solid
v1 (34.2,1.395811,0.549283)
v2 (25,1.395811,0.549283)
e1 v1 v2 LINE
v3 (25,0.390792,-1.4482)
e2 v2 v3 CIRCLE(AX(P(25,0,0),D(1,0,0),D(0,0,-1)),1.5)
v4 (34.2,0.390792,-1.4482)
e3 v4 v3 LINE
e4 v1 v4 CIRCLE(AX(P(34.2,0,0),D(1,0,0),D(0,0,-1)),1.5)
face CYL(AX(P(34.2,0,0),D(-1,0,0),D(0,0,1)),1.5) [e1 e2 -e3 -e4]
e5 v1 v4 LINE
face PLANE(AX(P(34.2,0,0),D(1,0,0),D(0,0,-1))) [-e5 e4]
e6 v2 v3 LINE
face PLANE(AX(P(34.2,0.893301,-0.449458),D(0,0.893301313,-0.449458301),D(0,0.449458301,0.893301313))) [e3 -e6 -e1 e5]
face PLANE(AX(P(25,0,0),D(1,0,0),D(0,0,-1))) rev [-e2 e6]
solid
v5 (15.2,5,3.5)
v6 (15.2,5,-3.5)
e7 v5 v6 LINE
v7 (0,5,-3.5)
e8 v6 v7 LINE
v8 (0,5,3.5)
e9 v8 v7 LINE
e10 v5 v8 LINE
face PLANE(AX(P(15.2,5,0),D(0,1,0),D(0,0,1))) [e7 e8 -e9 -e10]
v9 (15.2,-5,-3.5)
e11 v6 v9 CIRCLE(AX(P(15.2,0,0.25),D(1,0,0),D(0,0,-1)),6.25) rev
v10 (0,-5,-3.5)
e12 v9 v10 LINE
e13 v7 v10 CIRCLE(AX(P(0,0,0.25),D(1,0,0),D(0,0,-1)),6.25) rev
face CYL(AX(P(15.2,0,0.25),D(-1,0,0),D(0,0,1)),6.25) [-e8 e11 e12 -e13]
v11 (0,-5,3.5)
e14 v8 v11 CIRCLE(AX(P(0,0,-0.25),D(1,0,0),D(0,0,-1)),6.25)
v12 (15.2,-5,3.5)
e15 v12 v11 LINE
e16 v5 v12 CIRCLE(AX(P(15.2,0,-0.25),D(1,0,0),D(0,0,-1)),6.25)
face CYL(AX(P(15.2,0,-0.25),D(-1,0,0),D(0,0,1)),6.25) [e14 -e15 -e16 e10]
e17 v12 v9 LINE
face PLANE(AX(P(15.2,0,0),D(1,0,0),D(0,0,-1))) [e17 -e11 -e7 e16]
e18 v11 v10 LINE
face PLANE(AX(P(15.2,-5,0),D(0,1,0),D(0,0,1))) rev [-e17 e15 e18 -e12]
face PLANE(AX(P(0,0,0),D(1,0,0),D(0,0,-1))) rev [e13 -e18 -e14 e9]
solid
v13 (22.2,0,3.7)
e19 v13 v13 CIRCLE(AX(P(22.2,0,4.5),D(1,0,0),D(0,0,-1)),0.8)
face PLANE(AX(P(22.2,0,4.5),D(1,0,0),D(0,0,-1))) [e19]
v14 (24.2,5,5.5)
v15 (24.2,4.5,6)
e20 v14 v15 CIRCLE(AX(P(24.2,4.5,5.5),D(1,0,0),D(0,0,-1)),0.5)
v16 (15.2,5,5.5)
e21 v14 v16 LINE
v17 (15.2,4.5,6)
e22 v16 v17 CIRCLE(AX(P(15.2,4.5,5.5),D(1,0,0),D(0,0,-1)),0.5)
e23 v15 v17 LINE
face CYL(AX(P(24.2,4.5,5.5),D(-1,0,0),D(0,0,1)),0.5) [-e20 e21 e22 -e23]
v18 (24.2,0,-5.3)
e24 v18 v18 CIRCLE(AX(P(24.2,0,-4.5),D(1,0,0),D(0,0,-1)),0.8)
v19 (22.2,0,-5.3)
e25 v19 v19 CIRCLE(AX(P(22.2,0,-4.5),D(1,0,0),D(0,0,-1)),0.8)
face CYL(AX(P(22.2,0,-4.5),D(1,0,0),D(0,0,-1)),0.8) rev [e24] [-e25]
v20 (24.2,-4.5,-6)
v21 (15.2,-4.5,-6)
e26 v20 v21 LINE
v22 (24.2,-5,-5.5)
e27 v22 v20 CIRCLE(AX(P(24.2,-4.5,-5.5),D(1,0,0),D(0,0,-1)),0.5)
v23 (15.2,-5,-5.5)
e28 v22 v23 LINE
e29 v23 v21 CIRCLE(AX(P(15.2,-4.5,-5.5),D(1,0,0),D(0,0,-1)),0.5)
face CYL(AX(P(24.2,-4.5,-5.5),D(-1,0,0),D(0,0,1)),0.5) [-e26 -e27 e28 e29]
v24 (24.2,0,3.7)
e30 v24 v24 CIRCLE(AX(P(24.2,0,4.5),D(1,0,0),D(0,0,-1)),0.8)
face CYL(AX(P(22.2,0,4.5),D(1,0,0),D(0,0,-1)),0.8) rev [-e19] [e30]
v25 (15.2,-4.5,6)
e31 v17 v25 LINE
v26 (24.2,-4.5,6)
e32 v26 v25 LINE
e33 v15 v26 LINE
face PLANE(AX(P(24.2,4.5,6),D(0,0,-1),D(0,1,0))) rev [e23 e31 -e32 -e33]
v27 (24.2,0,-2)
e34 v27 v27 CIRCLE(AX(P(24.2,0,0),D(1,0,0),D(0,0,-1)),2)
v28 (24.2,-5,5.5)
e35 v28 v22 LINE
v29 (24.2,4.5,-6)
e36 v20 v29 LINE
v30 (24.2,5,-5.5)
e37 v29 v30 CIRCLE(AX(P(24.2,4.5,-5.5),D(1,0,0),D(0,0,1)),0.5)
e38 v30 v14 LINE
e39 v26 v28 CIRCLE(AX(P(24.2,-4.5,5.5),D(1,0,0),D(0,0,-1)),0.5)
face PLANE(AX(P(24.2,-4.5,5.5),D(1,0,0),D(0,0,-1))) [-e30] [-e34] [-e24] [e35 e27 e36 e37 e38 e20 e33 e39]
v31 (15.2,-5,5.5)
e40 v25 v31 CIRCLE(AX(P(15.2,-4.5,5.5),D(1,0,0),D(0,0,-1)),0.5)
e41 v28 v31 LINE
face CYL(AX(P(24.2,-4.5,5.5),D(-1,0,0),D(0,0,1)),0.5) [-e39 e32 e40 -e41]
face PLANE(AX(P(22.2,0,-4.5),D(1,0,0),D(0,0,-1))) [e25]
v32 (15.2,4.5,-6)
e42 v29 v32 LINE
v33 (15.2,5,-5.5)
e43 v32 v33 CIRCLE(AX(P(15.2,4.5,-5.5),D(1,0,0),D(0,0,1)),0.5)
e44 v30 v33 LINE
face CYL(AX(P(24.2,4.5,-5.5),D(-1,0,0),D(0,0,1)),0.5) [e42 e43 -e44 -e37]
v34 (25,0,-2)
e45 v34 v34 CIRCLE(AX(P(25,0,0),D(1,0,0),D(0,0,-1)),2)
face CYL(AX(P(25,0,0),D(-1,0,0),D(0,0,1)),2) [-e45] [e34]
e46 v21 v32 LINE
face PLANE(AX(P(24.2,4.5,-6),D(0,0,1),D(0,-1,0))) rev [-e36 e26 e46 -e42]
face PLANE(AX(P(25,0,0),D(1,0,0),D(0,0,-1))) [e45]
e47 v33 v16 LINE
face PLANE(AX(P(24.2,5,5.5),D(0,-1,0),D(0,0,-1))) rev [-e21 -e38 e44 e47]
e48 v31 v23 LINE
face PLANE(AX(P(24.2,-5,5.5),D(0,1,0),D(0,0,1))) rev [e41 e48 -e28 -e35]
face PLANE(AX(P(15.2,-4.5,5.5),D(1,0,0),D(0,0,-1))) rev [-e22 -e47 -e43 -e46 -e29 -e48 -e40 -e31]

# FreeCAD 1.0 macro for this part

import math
import FreeCAD as App
import Part
import Sketcher

V = App.Vector
Q = App.Units.Quantity

doc = App.newDocument("Part")
body = doc.addObject("PartDesign::Body", "Body")

# Sketch on YZ plane
sketch1 = body.newObject("Sketcher::SketchObject", "Sketch")
sketch1.AttachmentSupport = (doc.getObject("YZ_Plane"), [""])
sketch1.MapMode = "FlatFace"
sketch1.addGeometry(Part.ArcOfCircle(Part.Circle(V(0, 0, 0), V(0, 0, 1), 6), math.radians(37), math.radians(143)), False)
sketch1.addGeometry(Part.LineSegment(V(-5, 4, 0), V(-5, -4, 0)), False)
sketch1.addGeometry(Part.ArcOfCircle(Part.Circle(V(0, 0, 0), V(0, 0, 1), 6), math.radians(-143), math.radians(-37)), False)
sketch1.addGeometry(Part.LineSegment(V(5, -4, 0), V(5, 4, 0)), False)
sketch1.addConstraint(Sketcher.Constraint("Coincident", 0, 2, 1, 1))
sketch1.addConstraint(Sketcher.Constraint("Coincident", 1, 2, 2, 1))
sketch1.addConstraint(Sketcher.Constraint("Coincident", 2, 2, 3, 1))
sketch1.addConstraint(Sketcher.Constraint("Coincident", 3, 2, 0, 1))
sketch1.addConstraint(Sketcher.Constraint("Vertical", 1))
sketch1.addConstraint(Sketcher.Constraint("Vertical", 3))
sketch1.addConstraint(Sketcher.Constraint("Equal", 0, 2))
sketch1.addConstraint(Sketcher.Constraint("Symmetric", 0, 3, 2, 3, -1, 1))
sketch1.addConstraint(Sketcher.Constraint("Symmetric", 1, 2, 2, 2, -2))
sketch1.addConstraint(Sketcher.Constraint("DistanceY", 1, 2, 1, 1, Q("7 mm")))
sketch1.addConstraint(Sketcher.Constraint("Radius", 0, Q("6.25 mm")))
sketch1.addConstraint(Sketcher.Constraint("DistanceX", 0, 2, -1, 1, Q("5 mm")))
pad1 = body.newObject("PartDesign::Pad", "Pad")
pad1.Profile = sketch1
pad1.Length = 15.2
body2 = doc.addObject("PartDesign::Body", "Body001")

# Sketch on YZ plane
sketch2 = body2.newObject("Sketcher::SketchObject", "Sketch001")
sketch2.AttachmentSupport = (doc.getObject("YZ_Plane001"), [""])
sketch2.MapMode = "FlatFace"
sketch2.AttachmentOffset = App.Placement(V(0, 0, 15.2), App.Rotation())
sketch2.addGeometry(Part.LineSegment(V(5, -5.5, 0), V(5, 5.5, 0)), False)
sketch2.addGeometry(Part.ArcOfCircle(Part.Circle(V(4.5, 5.5, 0), V(0, 0, 1), 0.5), math.radians(0), math.radians(90)), False)
sketch2.addGeometry(Part.LineSegment(V(4.5, 6, 0), V(-4.5, 6, 0)), False)
sketch2.addGeometry(Part.ArcOfCircle(Part.Circle(V(-4.5, 5.5, 0), V(0, 0, 1), 0.5), math.radians(90), math.radians(180)), False)
sketch2.addGeometry(Part.LineSegment(V(-5, 5.5, 0), V(-5, -5.5, 0)), False)
sketch2.addGeometry(Part.ArcOfCircle(Part.Circle(V(-4.5, -5.5, 0), V(0, 0, 1), 0.5), math.radians(180), math.radians(270)), False)
sketch2.addGeometry(Part.LineSegment(V(-4.5, -6, 0), V(4.5, -6, 0)), False)
sketch2.addGeometry(Part.ArcOfCircle(Part.Circle(V(4.5, -5.5, 0), V(0, 0, 1), 0.5), math.radians(-90), math.radians(0)), False)
sketch2.addConstraint(Sketcher.Constraint("Tangent", 0, 2, 1, 1))
sketch2.addConstraint(Sketcher.Constraint("Tangent", 1, 2, 2, 1))
sketch2.addConstraint(Sketcher.Constraint("Tangent", 2, 2, 3, 1))
sketch2.addConstraint(Sketcher.Constraint("Tangent", 3, 2, 4, 1))
sketch2.addConstraint(Sketcher.Constraint("Tangent", 4, 2, 5, 1))
sketch2.addConstraint(Sketcher.Constraint("Tangent", 5, 2, 6, 1))
sketch2.addConstraint(Sketcher.Constraint("Tangent", 6, 2, 7, 1))
sketch2.addConstraint(Sketcher.Constraint("Tangent", 7, 2, 0, 1))
sketch2.addConstraint(Sketcher.Constraint("Vertical", 0))
sketch2.addConstraint(Sketcher.Constraint("Horizontal", 2))
sketch2.addConstraint(Sketcher.Constraint("Vertical", 4))
sketch2.addConstraint(Sketcher.Constraint("Horizontal", 6))
sketch2.addConstraint(Sketcher.Constraint("Equal", 1, 3))
sketch2.addConstraint(Sketcher.Constraint("Equal", 3, 5))
sketch2.addConstraint(Sketcher.Constraint("Equal", 5, 7))
sketch2.addConstraint(Sketcher.Constraint("Symmetric", 1, 3, 5, 3, -1, 1))
sketch2.addConstraint(Sketcher.Constraint("Radius", 1, Q("0.5 mm")))
sketch2.addConstraint(Sketcher.Constraint("DistanceX", 2, 2, 2, 1, Q("9 mm")))
sketch2.addConstraint(Sketcher.Constraint("DistanceY", 0, 1, 0, 2, Q("11 mm")))
pad2 = body2.newObject("PartDesign::Pad", "Pad001")
pad2.Profile = sketch2
pad2.Length = 9

# Sketch on YZ plane
sketch3 = body2.newObject("Sketcher::SketchObject", "Sketch002")
sketch3.AttachmentSupport = (doc.getObject("YZ_Plane001"), [""])
sketch3.MapMode = "FlatFace"
sketch3.AttachmentOffset = App.Placement(V(0, 0, 24.2), App.Rotation())
sketch3.addGeometry(Part.Circle(V(0, 0, 0), V(0, 0, 1), 2), False)
sketch3.addConstraint(Sketcher.Constraint("Coincident", 0, 3, -1, 1))
sketch3.addConstraint(Sketcher.Constraint("Diameter", 0, Q("4 mm")))
pad3 = body2.newObject("PartDesign::Pad", "Pad002")
pad3.Profile = sketch3
pad3.Length = 0.8

# Sketch on YZ plane
sketch4 = body2.newObject("Sketcher::SketchObject", "Sketch003")
sketch4.AttachmentSupport = (doc.getObject("YZ_Plane001"), [""])
sketch4.MapMode = "FlatFace"
sketch4.AttachmentOffset = App.Placement(V(0, 0, 24.2), App.Rotation())
sketch4.addGeometry(Part.Circle(V(0, -4.5, 0), V(0, 0, 1), 0.8), False)
sketch4.addGeometry(Part.Circle(V(0, 4.5, 0), V(0, 0, 1), 0.8), False)
sketch4.addConstraint(Sketcher.Constraint("Equal", 0, 1))
sketch4.addConstraint(Sketcher.Constraint("Symmetric", 0, 3, 1, 3, -1, 1))
sketch4.addConstraint(Sketcher.Constraint("PointOnObject", 0, 3, -2))
sketch4.addConstraint(Sketcher.Constraint("Diameter", 0, Q("1.6 mm")))
sketch4.addConstraint(Sketcher.Constraint("DistanceY", 0, 3, 1, 3, Q("9 mm")))
pocket1 = body2.newObject("PartDesign::Pocket", "Pocket")
pocket1.Profile = sketch4
pocket1.Length = 2
body3 = doc.addObject("PartDesign::Body", "Body002")

# Sketch on YZ plane
sketch5 = body3.newObject("Sketcher::SketchObject", "Sketch004")
sketch5.AttachmentSupport = (doc.getObject("YZ_Plane002"), [""])
sketch5.MapMode = "FlatFace"
sketch5.AttachmentOffset = App.Placement(V(0, 0, 25), App.Rotation())
sketch5.addGeometry(Part.LineSegment(V(0.39, -1.45, 0), V(1.4, 0.55, 0)), False)
sketch5.addGeometry(Part.ArcOfCircle(Part.Circle(V(0, 0, 0), V(0, 0, 1), 1.5), math.radians(21), math.radians(270)), False)
sketch5.addGeometry(Part.ArcOfCircle(Part.Circle(V(0, 0, 0), V(0, 0, 1), 1.5), math.radians(-90), math.radians(-74.9)), False)
sketch5.addConstraint(Sketcher.Constraint("Coincident", 0, 2, 1, 1))
sketch5.addConstraint(Sketcher.Constraint("Tangent", 1, 2, 2, 1))
sketch5.addConstraint(Sketcher.Constraint("Coincident", 2, 2, 0, 1))
sketch5.addConstraint(Sketcher.Constraint("Coincident", 1, 3, -1, 1))
sketch5.addConstraint(Sketcher.Constraint("Equal", 1, 2))
sketch5.addConstraint(Sketcher.Constraint("PointOnObject", 1, 2, -2))
sketch5.addConstraint(Sketcher.Constraint("Radius", 1, Q("1.5 mm")))
sketch5.addConstraint(Sketcher.Constraint("DistanceY", 2, 2, -1, 1, Q("1.4482 mm")))
sketch5.addConstraint(Sketcher.Constraint("DistanceX", -1, 1, 0, 2, Q("1.395811 mm")))
pad4 = body3.newObject("PartDesign::Pad", "Pad003")
pad4.Profile = sketch5
pad4.Length = 9.2

doc.recompute()
